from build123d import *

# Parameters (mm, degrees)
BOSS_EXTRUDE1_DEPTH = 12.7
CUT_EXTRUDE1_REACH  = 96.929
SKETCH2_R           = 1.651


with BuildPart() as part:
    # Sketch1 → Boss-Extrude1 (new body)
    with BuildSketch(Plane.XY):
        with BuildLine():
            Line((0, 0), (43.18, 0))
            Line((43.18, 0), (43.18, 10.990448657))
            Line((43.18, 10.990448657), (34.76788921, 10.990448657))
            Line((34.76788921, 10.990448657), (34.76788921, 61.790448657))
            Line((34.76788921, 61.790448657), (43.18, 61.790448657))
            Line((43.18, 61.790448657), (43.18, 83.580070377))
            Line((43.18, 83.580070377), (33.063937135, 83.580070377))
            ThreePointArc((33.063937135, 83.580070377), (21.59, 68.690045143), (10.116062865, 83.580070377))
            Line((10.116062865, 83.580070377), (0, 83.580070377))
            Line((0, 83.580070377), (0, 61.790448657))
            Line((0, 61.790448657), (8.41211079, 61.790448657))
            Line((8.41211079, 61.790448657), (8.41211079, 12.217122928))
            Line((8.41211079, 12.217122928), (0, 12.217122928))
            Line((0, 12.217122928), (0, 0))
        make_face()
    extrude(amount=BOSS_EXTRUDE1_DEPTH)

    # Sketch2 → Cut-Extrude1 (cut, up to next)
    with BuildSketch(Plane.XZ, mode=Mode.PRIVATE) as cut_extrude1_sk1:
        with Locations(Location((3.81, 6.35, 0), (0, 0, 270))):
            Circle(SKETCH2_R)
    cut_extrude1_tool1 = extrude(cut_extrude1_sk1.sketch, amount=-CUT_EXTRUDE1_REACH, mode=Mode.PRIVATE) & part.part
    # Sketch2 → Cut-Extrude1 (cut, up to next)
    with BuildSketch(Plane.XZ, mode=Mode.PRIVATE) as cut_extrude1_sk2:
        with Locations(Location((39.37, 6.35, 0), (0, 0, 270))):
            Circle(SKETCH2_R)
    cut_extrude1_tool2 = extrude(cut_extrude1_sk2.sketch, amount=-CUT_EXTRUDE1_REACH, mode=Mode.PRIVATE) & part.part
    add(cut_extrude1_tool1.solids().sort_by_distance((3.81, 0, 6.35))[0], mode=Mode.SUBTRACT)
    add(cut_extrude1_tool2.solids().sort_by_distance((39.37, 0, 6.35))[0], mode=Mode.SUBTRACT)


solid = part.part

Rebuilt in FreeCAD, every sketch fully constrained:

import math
import FreeCAD as App
import Part
import Sketcher

V = App.Vector
Q = App.Units.Quantity

doc = App.newDocument("Part")
body = doc.addObject("PartDesign::Body", "Body")

sketch1 = doc.addObject("Sketcher::SketchObject", "Sketch")
body.addObject(sketch1)
sketch1.AttachmentSupport = (doc.XY_Plane, [""])
sketch1.MapMode = "FlatFace"
sketch1.addGeometry(Part.LineSegment(V(0, 0, 0), V(43, 0, 0)), False)
sketch1.addGeometry(Part.LineSegment(V(43, 0, 0), V(43, 11, 0)), False)
sketch1.addGeometry(Part.LineSegment(V(43, 11, 0), V(35, 11, 0)), False)
sketch1.addGeometry(Part.LineSegment(V(35, 11, 0), V(35, 62, 0)), False)
sketch1.addGeometry(Part.LineSegment(V(35, 62, 0), V(43, 62, 0)), False)
sketch1.addGeometry(Part.LineSegment(V(43, 62, 0), V(43, 84, 0)), False)
sketch1.addGeometry(Part.LineSegment(V(43, 84, 0), V(33, 84, 0)), False)
sketch1.addGeometry(Part.ArcOfCircle(Part.Circle(V(22, 81, 0), V(0, 0, 1), 12), math.radians(165), math.radians(375)), False)
sketch1.addGeometry(Part.LineSegment(V(10, 84, 0), V(0, 84, 0)), False)
sketch1.addGeometry(Part.LineSegment(V(0, 84, 0), V(0, 62, 0)), False)
sketch1.addGeometry(Part.LineSegment(V(0, 62, 0), V(8, 62, 0)), False)
sketch1.addGeometry(Part.LineSegment(V(8, 62, 0), V(8, 12, 0)), False)
sketch1.addGeometry(Part.LineSegment(V(8, 12, 0), V(0, 12, 0)), False)
sketch1.addGeometry(Part.LineSegment(V(0, 12, 0), V(0, 0, 0)), False)
sketch1.addConstraint(Sketcher.Constraint("Coincident", 0, 2, 1, 1))
sketch1.addConstraint(Sketcher.Constraint("Coincident", 1, 2, 2, 1))
sketch1.addConstraint(Sketcher.Constraint("Coincident", 2, 2, 3, 1))
sketch1.addConstraint(Sketcher.Constraint("Coincident", 3, 2, 4, 1))
sketch1.addConstraint(Sketcher.Constraint("Coincident", 4, 2, 5, 1))
sketch1.addConstraint(Sketcher.Constraint("Coincident", 5, 2, 6, 1))
sketch1.addConstraint(Sketcher.Constraint("Coincident", 6, 2, 7, 2))
sketch1.addConstraint(Sketcher.Constraint("Coincident", 7, 1, 8, 1))
sketch1.addConstraint(Sketcher.Constraint("Coincident", 8, 2, 9, 1))
sketch1.addConstraint(Sketcher.Constraint("Coincident", 9, 2, 10, 1))
sketch1.addConstraint(Sketcher.Constraint("Coincident", 10, 2, 11, 1))
sketch1.addConstraint(Sketcher.Constraint("Coincident", 11, 2, 12, 1))
sketch1.addConstraint(Sketcher.Constraint("Coincident", 12, 2, 13, 1))
sketch1.addConstraint(Sketcher.Constraint("Coincident", 13, 2, 0, 1))
sketch1.addConstraint(Sketcher.Constraint("Horizontal", 0))
sketch1.addConstraint(Sketcher.Constraint("Vertical", 1))
sketch1.addConstraint(Sketcher.Constraint("Horizontal", 2))
sketch1.addConstraint(Sketcher.Constraint("Vertical", 3))
sketch1.addConstraint(Sketcher.Constraint("Horizontal", 4))
sketch1.addConstraint(Sketcher.Constraint("Vertical", 5))
sketch1.addConstraint(Sketcher.Constraint("Horizontal", 6))
sketch1.addConstraint(Sketcher.Constraint("Horizontal", 8))
sketch1.addConstraint(Sketcher.Constraint("Vertical", 9))
sketch1.addConstraint(Sketcher.Constraint("Horizontal", 10))
sketch1.addConstraint(Sketcher.Constraint("Vertical", 11))
sketch1.addConstraint(Sketcher.Constraint("Horizontal", 12))
sketch1.addConstraint(Sketcher.Constraint("Vertical", 13))
sketch1.addConstraint(Sketcher.Constraint("Coincident", 13, 2, -1, 1))
sketch1.addConstraint(Sketcher.Constraint("PointOnObject", 8, 2, -2))
sketch1.addConstraint(Sketcher.Constraint("Horizontal", 6, 2, 7, 1))
sketch1.addConstraint(Sketcher.Constraint("Horizontal", 4, 2, 9, 2))
sketch1.addConstraint(Sketcher.Constraint("Vertical", 1, 2, 4, 2))
sketch1.addConstraint(Sketcher.Constraint("Equal", 6, 8))
sketch1.addConstraint(Sketcher.Constraint("Equal", 4, 10))
sketch1.addConstraint(Sketcher.Constraint("DistanceY", 3, 1, 3, 2, Q("2 in")))
sketch1.addConstraint(Sketcher.Constraint("DistanceX", 0, 1, 0, 2, Q("1.7 in")))
sketch1.addConstraint(Sketcher.Constraint("Radius", 7, Q("11.865799 mm")))
sketch1.addConstraint(Sketcher.Constraint("DistanceX", 2, 2, 2, 1, Q("8.412111 mm")))
sketch1.addConstraint(Sketcher.Constraint("DistanceY", 1, 1, 1, 2, Q("10.990449 mm")))
sketch1.addConstraint(Sketcher.Constraint("DistanceY", 5, 1, 5, 2, Q("21.789622 mm")))
sketch1.addConstraint(Sketcher.Constraint("DistanceX", 6, 2, 6, 1, Q("10.116063 mm")))
sketch1.addConstraint(Sketcher.Constraint("DistanceY", 11, 2, 11, 1, Q("49.573326 mm")))
pad1 = doc.addObject("PartDesign::Pad", "Pad")
body.addObject(pad1)
pad1.Profile = sketch1
pad1.Length = Q("0.5 in")

sketch2 = doc.addObject("Sketcher::SketchObject", "Sketch001")
body.addObject(sketch2)
sketch2.AttachmentSupport = (doc.XZ_Plane, [""])
sketch2.MapMode = "FlatFace"
sketch2.addGeometry(Part.Circle(V(3.8, 6.3, 0), V(0, 0, 1), 1.7), False)
sketch2.addConstraint(Sketcher.Constraint("Diameter", 0, Q("0.13 in")))
sketch2.addConstraint(Sketcher.Constraint("DistanceX", -1, 1, 0, 3, Q("0.15 in")))
sketch2.addConstraint(Sketcher.Constraint("DistanceY", -1, 1, 0, 3, Q("0.25 in")))
pocket1 = doc.addObject("PartDesign::Pocket", "Pocket")
body.addObject(pocket1)
pocket1.Profile = sketch2
pocket1.Type = "UpToFirst"

sketch3 = doc.addObject("Sketcher::SketchObject", "Sketch002")
body.addObject(sketch3)
sketch3.AttachmentSupport = (doc.XZ_Plane, [""])
sketch3.MapMode = "FlatFace"
sketch3.addGeometry(Part.Circle(V(39.4, 6.3, 0), V(0, 0, 1), 1.7), False)
sketch3.addConstraint(Sketcher.Constraint("Diameter", 0, Q("0.13 in")))
sketch3.addConstraint(Sketcher.Constraint("DistanceX", -1, 1, 0, 3, Q("1.55 in")))
sketch3.addConstraint(Sketcher.Constraint("DistanceY", -1, 1, 0, 3, Q("0.25 in")))
pocket2 = doc.addObject("PartDesign::Pocket", "Pocket001")
body.addObject(pocket2)
pocket2.Profile = sketch3
pocket2.Type = "UpToFirst"

doc.recompute()
